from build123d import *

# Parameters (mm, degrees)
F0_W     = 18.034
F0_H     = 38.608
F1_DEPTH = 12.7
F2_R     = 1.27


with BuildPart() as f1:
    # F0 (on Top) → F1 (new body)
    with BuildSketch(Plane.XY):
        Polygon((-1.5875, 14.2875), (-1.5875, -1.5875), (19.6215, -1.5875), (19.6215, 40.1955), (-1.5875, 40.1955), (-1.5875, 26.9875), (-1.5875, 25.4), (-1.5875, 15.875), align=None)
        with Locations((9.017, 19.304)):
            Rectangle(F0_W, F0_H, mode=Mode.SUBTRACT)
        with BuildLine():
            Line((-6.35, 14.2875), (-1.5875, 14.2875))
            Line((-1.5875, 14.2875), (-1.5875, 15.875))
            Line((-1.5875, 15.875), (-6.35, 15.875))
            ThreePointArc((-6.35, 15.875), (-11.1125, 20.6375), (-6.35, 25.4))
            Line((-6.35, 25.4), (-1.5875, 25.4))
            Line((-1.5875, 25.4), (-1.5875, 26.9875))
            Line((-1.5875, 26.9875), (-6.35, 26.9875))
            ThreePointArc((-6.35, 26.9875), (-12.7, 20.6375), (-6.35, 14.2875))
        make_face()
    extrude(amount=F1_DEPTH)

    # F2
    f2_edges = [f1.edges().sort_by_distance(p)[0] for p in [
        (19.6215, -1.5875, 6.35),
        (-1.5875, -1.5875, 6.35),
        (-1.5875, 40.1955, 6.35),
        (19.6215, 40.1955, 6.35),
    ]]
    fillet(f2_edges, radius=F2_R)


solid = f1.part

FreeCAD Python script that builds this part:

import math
import FreeCAD as App
import Part
import Sketcher

V = App.Vector
Q = App.Units.Quantity


def edges_at(feature, points):
    """Names of the edges that pass closest to the given points."""
    edges = feature.Shape.Edges
    near = lambda p: min(range(len(edges)), key=lambda i: edges[i].distToShape(Part.Vertex(*p))[0])
    return sorted({f"Edge{near(p) + 1}" for p in points})


def add_polygon(sketch, points):
    """Adds a closed chain of lines whose ends are joined by coincident constraints."""
    first, n = sketch.GeometryCount, len(points)
    for a, b in zip(points, points[1:] + points[:1]):
        sketch.addGeometry(Part.LineSegment(App.Vector(*a, 0), App.Vector(*b, 0)), False)
    for i in range(n):
        sketch.addConstraint(Sketcher.Constraint("Coincident", first + i, 2, first + (i + 1) % n, 1))

doc = App.newDocument("Part")
params = doc.addObject("Spreadsheet::Sheet", "Params")
for row, (alias, value) in enumerate([
    ("sketch1_radius", "0.25 in"),
    ("sketch1_radius2", "0.1875 in"),
    ("sketch1_width", "0.71 in"),
    ("sketch1_height", "0.52 in"),
    ("sketch1_height2", "1.52 in"),
    ("pad1_length", "0.5 in"),
    ("fillet_radius", "0.05 in"),
], start=1):
    params.set(f"A{row}", alias)
    params.set(f"B{row}", "=" + value)
    params.setAlias(f"B{row}", alias)

body = doc.addObject("PartDesign::Body", "Body")

sketch1 = body.newObject("Sketcher::SketchObject", "Sketch")
sketch1.AttachmentSupport = (doc.getObject("XY_Plane"), [""])
sketch1.MapMode = "FlatFace"
sketch1.addGeometry(Part.LineSegment(V(-1.5875, -1.5875, 0), V(19.6215, -1.5875, 0)), False)
sketch1.addGeometry(Part.LineSegment(V(19.6215, -1.5875, 0), V(19.6215, 40.1955, 0)), False)
sketch1.addGeometry(Part.LineSegment(V(19.6215, 40.1955, 0), V(-1.5875, 40.1955, 0)), False)
sketch1.addGeometry(Part.LineSegment(V(-1.5875, 40.1955, 0), V(-1.5875, 26.9875, 0)), False)
sketch1.addGeometry(Part.LineSegment(V(-1.5875, 26.9875, 0), V(-6.35, 26.9875, 0)), False)
sketch1.addGeometry(Part.ArcOfCircle(Part.Circle(V(-6.35, 20.6375, 0), V(0, 0, 1), 6.35), math.radians(90), math.radians(270)), False)
sketch1.addGeometry(Part.LineSegment(V(-6.35, 14.2875, 0), V(-1.5875, 14.2875, 0)), False)
sketch1.addGeometry(Part.LineSegment(V(-1.5875, 14.2875, 0), V(-1.5875, -1.5875, 0)), False)
sketch1.addGeometry(Part.LineSegment(V(-1.5875, 25.4, 0), V(-1.5875, 15.875, 0)), False)
sketch1.addGeometry(Part.LineSegment(V(-1.5875, 15.875, 0), V(-6.35, 15.875, 0)), False)
sketch1.addGeometry(Part.ArcOfCircle(Part.Circle(V(-6.35, 20.6375, 0), V(0, 0, 1), 4.7625), math.radians(90), math.radians(270)), False)
sketch1.addGeometry(Part.LineSegment(V(-6.35, 25.4, 0), V(-1.5875, 25.4, 0)), False)
add_polygon(sketch1, [(18.034, 0), (0, 0), (0, 38.608), (18.034, 38.608)])
sketch1.addConstraint(Sketcher.Constraint("Coincident", 0, 2, 1, 1))
sketch1.addConstraint(Sketcher.Constraint("Coincident", 1, 2, 2, 1))
sketch1.addConstraint(Sketcher.Constraint("Coincident", 2, 2, 3, 1))
sketch1.addConstraint(Sketcher.Constraint("Coincident", 3, 2, 4, 1))
sketch1.addConstraint(Sketcher.Constraint("Tangent", 4, 2, 5, 1))
sketch1.addConstraint(Sketcher.Constraint("Tangent", 5, 2, 6, 1))
sketch1.addConstraint(Sketcher.Constraint("Coincident", 6, 2, 7, 1))
sketch1.addConstraint(Sketcher.Constraint("Coincident", 7, 2, 0, 1))
sketch1.addConstraint(Sketcher.Constraint("Coincident", 8, 2, 9, 1))
sketch1.addConstraint(Sketcher.Constraint("Tangent", 9, 2, 10, 2))
sketch1.addConstraint(Sketcher.Constraint("Tangent", 10, 1, 11, 1))
sketch1.addConstraint(Sketcher.Constraint("Coincident", 11, 2, 8, 1))
sketch1.addConstraint(Sketcher.Constraint("Horizontal", 0))
sketch1.addConstraint(Sketcher.Constraint("Vertical", 1))
sketch1.addConstraint(Sketcher.Constraint("Horizontal", 2))
sketch1.addConstraint(Sketcher.Constraint("Vertical", 3))
sketch1.addConstraint(Sketcher.Constraint("Horizontal", 4))
sketch1.addConstraint(Sketcher.Constraint("Horizontal", 6))
sketch1.addConstraint(Sketcher.Constraint("Vertical", 7))
sketch1.addConstraint(Sketcher.Constraint("Vertical", 8))
sketch1.addConstraint(Sketcher.Constraint("Horizontal", 9))
sketch1.addConstraint(Sketcher.Constraint("Horizontal", 11))
sketch1.addConstraint(Sketcher.Constraint("Horizontal", 12))
sketch1.addConstraint(Sketcher.Constraint("Vertical", 13))
sketch1.addConstraint(Sketcher.Constraint("Horizontal", 14))
sketch1.addConstraint(Sketcher.Constraint("Vertical", 15))
sketch1.addConstraint(Sketcher.Constraint("Coincident", 12, 2, -1, 1))
sketch1.addConstraint(Sketcher.Constraint("Coincident", 10, 3, 5, 3))
sketch1.addConstraint(Sketcher.Constraint("Vertical", 3, 2, 6, 2))
sketch1.addConstraint(Sketcher.Constraint("Vertical", 7, 2, 8, 2))
sketch1.addConstraint(Sketcher.Constraint("Radius", 5, Q("0.25 in")))
sketch1.addConstraint(Sketcher.Constraint("DistanceY", -1, 1, 10, 1, Q("1 in")))
sketch1.addConstraint(Sketcher.Constraint("Radius", 10, Q("0.1875 in")))
sketch1.addConstraint(Sketcher.Constraint("DistanceX", 12, 2, 12, 1, Q("0.71 in")))
sketch1.addConstraint(Sketcher.Constraint("DistanceY", 3, 2, 3, 1, Q("0.52 in")))
sketch1.addConstraint(Sketcher.Constraint("DistanceY", 13, 1, 13, 2, Q("1.52 in")))
sketch1.addConstraint(Sketcher.Constraint("DistanceX", 0, 1, 0, 2, Q("0.835 in")))
sketch1.addConstraint(Sketcher.Constraint("DistanceX", 4, 2, 4, 1, Q("0.1875 in")))
sketch1.addConstraint(Sketcher.Constraint("DistanceY", 1, 1, 1, 2, Q("1.645 in")))
sketch1.addConstraint(Sketcher.Constraint("DistanceX", 5, 3, -1, 1, Q("0.25 in")))
sketch1.setExpression("Constraints[34]", "Params.sketch1_radius")
sketch1.setExpression("Constraints[36]", "Params.sketch1_radius2")
sketch1.setExpression("Constraints[37]", "Params.sketch1_width")
sketch1.setExpression("Constraints[38]", "Params.sketch1_height")
sketch1.setExpression("Constraints[39]", "Params.sketch1_height2")
pad1 = body.newObject("PartDesign::Pad", "Pad")
pad1.Profile = sketch1
pad1.setExpression("Length", "Params.pad1_length")
doc.recompute()

fillet = body.newObject("PartDesign::Fillet", "Fillet")
fillet.Base = (pad1, edges_at(pad1, [
    (19.622, -1.587, 6.35),
    (-1.587, -1.587, 6.35),
    (-1.587, 40.196, 6.35),
    (19.622, 40.196, 6.35),
]))
fillet.setExpression("Radius", "Params.fillet_radius")

doc.recompute()
